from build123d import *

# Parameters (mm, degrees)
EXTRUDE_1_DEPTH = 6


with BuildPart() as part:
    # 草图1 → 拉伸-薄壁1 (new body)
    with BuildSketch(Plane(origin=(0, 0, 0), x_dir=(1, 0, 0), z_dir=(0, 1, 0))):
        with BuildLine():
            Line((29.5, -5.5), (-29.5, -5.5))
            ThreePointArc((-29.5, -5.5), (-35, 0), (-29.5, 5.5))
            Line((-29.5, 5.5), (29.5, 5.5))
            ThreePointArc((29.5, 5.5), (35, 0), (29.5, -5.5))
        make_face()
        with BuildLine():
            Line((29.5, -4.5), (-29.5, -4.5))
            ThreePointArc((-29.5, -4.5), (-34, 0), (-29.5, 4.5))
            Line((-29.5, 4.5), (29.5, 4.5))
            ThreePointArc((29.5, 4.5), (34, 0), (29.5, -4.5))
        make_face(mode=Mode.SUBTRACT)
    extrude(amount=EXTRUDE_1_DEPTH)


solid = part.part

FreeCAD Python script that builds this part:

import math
import FreeCAD as App
import Part
import Sketcher
from FreeCAD import Vector

doc = App.newDocument("Part")
params = doc.addObject("Spreadsheet::Sheet", "Params")
for row, (alias, value) in enumerate([
    ("sketch1_radius", "5.5 mm"),
    ("sketch1_radius2", "4.5 mm"),
    ("sketch1_width", "59 mm"),
    ("pad1_length", "6 mm"),
], start=1):
    params.set(f"A{row}", alias)
    params.set(f"B{row}", "=" + value)
    params.setAlias(f"B{row}", alias)

body = doc.addObject("PartDesign::Body", "Body")

# Sketch on XZ plane
sketch1 = body.newObject("Sketcher::SketchObject", "Sketch")
sketch1.AttachmentSupport = (doc.getObject("XZ_Plane"), [""])
sketch1.MapMode = "FlatFace"
sketch1.addGeometry([
    Part.LineSegment(Vector(-29.5, 5.5, 0), Vector(29.5, 5.5, 0)),  # 0
    Part.ArcOfCircle(Part.Circle(Vector(29.5, 0, 0), Vector(0, 0, 1), 5.5), math.radians(-90), math.radians(90)),  # 1
    Part.LineSegment(Vector(29.5, -5.5, 0), Vector(-29.5, -5.5, 0)),  # 2
    Part.ArcOfCircle(Part.Circle(Vector(-29.5, 0, 0), Vector(0, 0, 1), 5.5), math.radians(90), math.radians(270)),  # 3
    Part.LineSegment(Vector(29.5, 4.5, 0), Vector(-29.5, 4.5, 0)),  # 4
    Part.ArcOfCircle(Part.Circle(Vector(-29.5, 0, 0), Vector(0, 0, 1), 4.5), math.radians(90), math.radians(270)),  # 5
    Part.LineSegment(Vector(-29.5, -4.5, 0), Vector(29.5, -4.5, 0)),  # 6
    Part.ArcOfCircle(Part.Circle(Vector(29.5, 0, 0), Vector(0, 0, 1), 4.5), math.radians(-90), math.radians(90)),  # 7
], False)
sketch1.addConstraint([
    Sketcher.Constraint("Tangent", 0, 2, 1, 2),
    Sketcher.Constraint("Tangent", 1, 1, 2, 1),
    Sketcher.Constraint("Tangent", 2, 2, 3, 2),
    Sketcher.Constraint("Tangent", 3, 1, 0, 1),
    Sketcher.Constraint("Tangent", 4, 2, 5, 1),
    Sketcher.Constraint("Tangent", 5, 2, 6, 1),
    Sketcher.Constraint("Tangent", 6, 2, 7, 1),
    Sketcher.Constraint("Tangent", 7, 2, 4, 1),
    Sketcher.Constraint("Horizontal", 0),
    Sketcher.Constraint("Horizontal", 2),
    Sketcher.Constraint("Horizontal", 4),
    Sketcher.Constraint("Horizontal", 6),
    Sketcher.Constraint("Coincident", 5, 3, 3, 3),
    Sketcher.Constraint("Symmetric", 1, 3, 3, 3, -1, 1),
    Sketcher.Constraint("Vertical", 7, 3, 0, 2),
    Sketcher.Constraint("Radius", 1, 5.5),
    Sketcher.Constraint("Radius", 5, 4.5),
    Sketcher.Constraint("DistanceX", 0, 1, 0, 2, 59.0),
])
sketch1.setExpression("Constraints[15]", "Params.sketch1_radius")
sketch1.setExpression("Constraints[16]", "Params.sketch1_radius2")
sketch1.setExpression("Constraints[17]", "Params.sketch1_width")
pad1 = body.newObject("PartDesign::Pad", "Pad")
pad1.Profile = sketch1
pad1.setExpression("Length", "Params.pad1_length")
pad1.Reversed = True

doc.recompute()
